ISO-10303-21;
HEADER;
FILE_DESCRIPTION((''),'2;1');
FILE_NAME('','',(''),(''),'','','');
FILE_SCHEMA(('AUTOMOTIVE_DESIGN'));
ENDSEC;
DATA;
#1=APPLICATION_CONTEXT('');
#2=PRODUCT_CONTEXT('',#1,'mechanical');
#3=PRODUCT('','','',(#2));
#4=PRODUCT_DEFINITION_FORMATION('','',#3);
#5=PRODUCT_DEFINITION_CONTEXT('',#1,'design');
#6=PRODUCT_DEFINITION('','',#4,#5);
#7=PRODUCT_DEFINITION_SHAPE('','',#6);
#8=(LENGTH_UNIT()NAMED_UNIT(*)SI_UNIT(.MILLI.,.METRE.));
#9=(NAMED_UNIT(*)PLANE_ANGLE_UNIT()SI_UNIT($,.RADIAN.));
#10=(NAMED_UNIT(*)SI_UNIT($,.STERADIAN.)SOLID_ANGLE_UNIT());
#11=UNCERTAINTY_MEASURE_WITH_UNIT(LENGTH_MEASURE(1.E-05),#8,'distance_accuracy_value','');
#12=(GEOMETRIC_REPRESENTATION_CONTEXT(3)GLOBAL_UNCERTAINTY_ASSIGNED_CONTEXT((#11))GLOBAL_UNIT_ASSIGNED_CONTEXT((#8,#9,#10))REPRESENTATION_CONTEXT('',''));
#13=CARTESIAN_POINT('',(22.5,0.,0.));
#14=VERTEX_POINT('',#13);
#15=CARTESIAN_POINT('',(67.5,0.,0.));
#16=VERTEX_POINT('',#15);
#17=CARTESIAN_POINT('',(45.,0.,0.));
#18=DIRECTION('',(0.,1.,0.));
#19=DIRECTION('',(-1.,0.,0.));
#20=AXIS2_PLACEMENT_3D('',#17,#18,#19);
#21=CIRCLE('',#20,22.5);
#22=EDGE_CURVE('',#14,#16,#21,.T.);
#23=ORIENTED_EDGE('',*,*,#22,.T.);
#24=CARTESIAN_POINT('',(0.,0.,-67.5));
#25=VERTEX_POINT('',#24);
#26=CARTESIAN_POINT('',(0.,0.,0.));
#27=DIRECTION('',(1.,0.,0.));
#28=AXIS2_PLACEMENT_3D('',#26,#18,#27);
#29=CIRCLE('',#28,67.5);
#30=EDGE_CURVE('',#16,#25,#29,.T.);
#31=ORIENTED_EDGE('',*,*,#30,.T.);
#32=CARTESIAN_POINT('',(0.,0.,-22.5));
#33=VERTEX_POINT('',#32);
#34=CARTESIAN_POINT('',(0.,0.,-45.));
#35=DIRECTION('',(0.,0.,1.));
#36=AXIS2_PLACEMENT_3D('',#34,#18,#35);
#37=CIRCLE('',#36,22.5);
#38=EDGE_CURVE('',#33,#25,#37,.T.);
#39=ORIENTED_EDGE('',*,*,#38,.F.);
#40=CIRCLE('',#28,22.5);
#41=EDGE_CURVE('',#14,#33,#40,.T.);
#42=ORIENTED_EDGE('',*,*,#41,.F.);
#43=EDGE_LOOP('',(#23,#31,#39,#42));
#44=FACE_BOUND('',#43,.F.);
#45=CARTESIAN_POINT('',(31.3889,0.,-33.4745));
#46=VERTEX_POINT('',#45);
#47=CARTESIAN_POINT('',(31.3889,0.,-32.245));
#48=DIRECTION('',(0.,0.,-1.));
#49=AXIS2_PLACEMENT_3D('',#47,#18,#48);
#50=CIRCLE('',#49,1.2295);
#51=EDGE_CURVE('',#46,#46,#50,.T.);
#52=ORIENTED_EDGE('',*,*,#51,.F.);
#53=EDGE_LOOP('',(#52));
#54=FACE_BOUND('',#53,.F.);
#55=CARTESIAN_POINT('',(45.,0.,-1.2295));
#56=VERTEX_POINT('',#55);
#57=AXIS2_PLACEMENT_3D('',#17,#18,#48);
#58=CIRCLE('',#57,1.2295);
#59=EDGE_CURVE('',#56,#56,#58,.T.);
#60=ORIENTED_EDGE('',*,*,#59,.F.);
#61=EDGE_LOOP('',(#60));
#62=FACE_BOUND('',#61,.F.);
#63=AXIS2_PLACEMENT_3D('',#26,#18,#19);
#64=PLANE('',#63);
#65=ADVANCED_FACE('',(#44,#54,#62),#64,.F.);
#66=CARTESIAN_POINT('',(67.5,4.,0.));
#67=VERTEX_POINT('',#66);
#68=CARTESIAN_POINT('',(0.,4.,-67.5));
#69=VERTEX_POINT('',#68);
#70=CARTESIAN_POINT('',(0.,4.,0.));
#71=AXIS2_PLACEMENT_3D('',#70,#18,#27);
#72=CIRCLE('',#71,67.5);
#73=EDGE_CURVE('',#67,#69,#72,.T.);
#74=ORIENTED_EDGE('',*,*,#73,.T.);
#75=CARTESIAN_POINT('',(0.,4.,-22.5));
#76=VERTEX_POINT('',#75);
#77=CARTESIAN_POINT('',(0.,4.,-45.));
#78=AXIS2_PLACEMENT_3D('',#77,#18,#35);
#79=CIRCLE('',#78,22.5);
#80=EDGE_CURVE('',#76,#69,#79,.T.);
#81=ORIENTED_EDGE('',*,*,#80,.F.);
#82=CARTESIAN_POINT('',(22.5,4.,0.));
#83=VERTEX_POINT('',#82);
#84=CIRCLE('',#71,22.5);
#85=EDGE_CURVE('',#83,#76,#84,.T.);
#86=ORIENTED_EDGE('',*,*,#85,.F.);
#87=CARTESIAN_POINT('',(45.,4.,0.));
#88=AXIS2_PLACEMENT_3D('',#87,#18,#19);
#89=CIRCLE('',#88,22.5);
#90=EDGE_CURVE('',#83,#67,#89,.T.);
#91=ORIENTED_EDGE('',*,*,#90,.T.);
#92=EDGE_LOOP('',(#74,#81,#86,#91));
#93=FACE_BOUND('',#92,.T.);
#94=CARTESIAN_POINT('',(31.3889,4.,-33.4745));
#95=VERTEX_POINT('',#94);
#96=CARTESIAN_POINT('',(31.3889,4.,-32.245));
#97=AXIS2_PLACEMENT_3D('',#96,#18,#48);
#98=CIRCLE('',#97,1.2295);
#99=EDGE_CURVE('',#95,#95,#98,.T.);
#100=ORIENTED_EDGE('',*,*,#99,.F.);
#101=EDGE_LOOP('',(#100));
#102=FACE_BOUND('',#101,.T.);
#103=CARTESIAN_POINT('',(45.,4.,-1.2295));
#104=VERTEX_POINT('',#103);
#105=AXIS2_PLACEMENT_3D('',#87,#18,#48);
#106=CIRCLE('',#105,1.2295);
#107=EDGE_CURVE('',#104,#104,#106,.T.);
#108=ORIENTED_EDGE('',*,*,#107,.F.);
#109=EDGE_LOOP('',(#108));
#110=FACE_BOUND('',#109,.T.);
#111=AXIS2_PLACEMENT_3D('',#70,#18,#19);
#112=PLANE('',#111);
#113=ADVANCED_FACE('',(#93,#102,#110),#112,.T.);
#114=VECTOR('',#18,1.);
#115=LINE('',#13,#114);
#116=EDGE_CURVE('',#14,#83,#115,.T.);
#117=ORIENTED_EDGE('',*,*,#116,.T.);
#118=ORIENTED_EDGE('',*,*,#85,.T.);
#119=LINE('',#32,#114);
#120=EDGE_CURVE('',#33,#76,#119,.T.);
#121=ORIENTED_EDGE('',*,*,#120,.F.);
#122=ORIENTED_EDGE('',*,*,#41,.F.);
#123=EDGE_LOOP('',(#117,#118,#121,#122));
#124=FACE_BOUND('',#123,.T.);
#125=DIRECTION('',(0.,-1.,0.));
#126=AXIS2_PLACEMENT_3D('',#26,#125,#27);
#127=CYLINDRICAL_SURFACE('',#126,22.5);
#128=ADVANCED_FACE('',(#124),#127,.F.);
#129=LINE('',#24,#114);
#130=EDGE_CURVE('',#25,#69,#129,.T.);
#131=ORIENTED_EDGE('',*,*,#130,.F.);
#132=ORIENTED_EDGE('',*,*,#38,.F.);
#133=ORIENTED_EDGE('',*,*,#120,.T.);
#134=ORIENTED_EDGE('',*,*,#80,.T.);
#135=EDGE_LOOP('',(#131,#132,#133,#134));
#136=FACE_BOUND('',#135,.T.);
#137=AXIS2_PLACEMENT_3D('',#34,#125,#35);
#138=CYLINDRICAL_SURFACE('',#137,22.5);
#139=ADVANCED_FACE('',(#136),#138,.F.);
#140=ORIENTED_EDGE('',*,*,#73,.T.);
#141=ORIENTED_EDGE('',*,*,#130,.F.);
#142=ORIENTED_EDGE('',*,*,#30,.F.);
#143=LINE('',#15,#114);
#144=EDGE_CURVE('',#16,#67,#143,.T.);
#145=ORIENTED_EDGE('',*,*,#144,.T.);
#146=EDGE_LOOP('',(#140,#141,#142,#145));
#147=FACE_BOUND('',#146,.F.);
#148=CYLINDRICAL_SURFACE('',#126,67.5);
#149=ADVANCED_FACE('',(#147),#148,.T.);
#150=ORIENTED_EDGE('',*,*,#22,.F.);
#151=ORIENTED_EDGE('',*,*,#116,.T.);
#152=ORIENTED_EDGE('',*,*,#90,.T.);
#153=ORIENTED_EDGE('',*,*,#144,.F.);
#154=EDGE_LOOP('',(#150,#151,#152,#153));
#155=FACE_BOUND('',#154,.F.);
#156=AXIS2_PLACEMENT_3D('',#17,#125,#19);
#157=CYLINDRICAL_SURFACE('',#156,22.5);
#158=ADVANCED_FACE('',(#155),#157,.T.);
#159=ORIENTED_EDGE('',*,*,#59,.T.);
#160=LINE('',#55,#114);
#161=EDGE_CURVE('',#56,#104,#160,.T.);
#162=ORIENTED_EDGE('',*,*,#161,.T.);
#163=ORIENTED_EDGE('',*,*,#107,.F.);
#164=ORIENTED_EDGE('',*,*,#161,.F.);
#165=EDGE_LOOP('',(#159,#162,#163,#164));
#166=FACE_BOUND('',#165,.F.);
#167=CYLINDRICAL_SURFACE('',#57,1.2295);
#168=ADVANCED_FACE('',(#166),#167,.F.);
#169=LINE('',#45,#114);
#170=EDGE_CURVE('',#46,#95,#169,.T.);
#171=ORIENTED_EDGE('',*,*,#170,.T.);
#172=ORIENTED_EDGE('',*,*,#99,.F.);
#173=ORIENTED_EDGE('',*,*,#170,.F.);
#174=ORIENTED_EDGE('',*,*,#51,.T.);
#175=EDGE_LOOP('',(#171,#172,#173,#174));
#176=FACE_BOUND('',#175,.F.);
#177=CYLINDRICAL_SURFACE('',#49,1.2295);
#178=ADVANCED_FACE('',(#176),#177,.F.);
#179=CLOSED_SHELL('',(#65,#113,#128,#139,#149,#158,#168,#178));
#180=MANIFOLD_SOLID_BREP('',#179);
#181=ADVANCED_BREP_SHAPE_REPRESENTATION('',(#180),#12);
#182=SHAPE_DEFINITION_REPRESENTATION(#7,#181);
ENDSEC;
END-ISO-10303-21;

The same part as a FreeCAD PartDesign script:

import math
import FreeCAD as App
import Part
import Sketcher

V = App.Vector
Q = App.Units.Quantity

doc = App.newDocument("Part")
body = doc.addObject("PartDesign::Body", "Body")

# Sketch on XZ plane
sketch1 = body.newObject("Sketcher::SketchObject", "Sketch")
sketch1.AttachmentSupport = (doc.getObject("XZ_Plane"), [""])
sketch1.MapMode = "FlatFace"
sketch1.addGeometry(Part.ArcOfCircle(Part.Circle(V(45, 0, 0), V(0, 0, 1), 22), math.radians(0), math.radians(180)), False)
sketch1.addGeometry(Part.ArcOfCircle(Part.Circle(V(0, 0, 0), V(0, 0, 1), 68), math.radians(-90), math.radians(0)), False)
sketch1.addGeometry(Part.ArcOfCircle(Part.Circle(V(0, -45, 0), V(0, 0, 1), 22), math.radians(-90), math.radians(90)), False)
sketch1.addGeometry(Part.ArcOfCircle(Part.Circle(V(0, 0, 0), V(0, 0, 1), 22), math.radians(-90), math.radians(0)), False)
sketch1.addConstraint(Sketcher.Constraint("Tangent", 0, 1, 1, 2))
sketch1.addConstraint(Sketcher.Constraint("Tangent", 1, 1, 2, 1))
sketch1.addConstraint(Sketcher.Constraint("Tangent", 2, 2, 3, 1))
sketch1.addConstraint(Sketcher.Constraint("Tangent", 3, 2, 0, 2))
sketch1.addConstraint(Sketcher.Constraint("Coincident", 1, 3, -1, 1))
sketch1.addConstraint(Sketcher.Constraint("Coincident", 3, 3, -1, 1))
sketch1.addConstraint(Sketcher.Constraint("Equal", 2, 3))
sketch1.addConstraint(Sketcher.Constraint("PointOnObject", 0, 3, -1))
sketch1.addConstraint(Sketcher.Constraint("PointOnObject", 2, 3, -2))
sketch1.addConstraint(Sketcher.Constraint("Radius", 0, Q("22.5 mm")))
pad1 = body.newObject("PartDesign::Pad", "Pad")
pad1.Profile = sketch1
pad1.Length = 4
pad1.Reversed = True

# Sketch on XZ plane
sketch2 = body.newObject("Sketcher::SketchObject", "Sketch001")
sketch2.AttachmentSupport = (doc.getObject("XZ_Plane"), [""])
sketch2.MapMode = "FlatFace"
sketch2.addGeometry(Part.Circle(V(45, 0, 0), V(0, 0, 1), 1.2), False)
sketch2.addGeometry(Part.Circle(V(31.4, -32.2, 0), V(0, 0, 1), 1.2), False)
sketch2.addConstraint(Sketcher.Constraint("Equal", 0, 1))
sketch2.addConstraint(Sketcher.Constraint("PointOnObject", 0, 3, -1))
sketch2.addConstraint(Sketcher.Constraint("Diameter", 0, Q("2.459 mm")))
sketch2.addConstraint(Sketcher.Constraint("DistanceX", -1, 1, 0, 3, Q("45 mm")))
sketch2.addConstraint(Sketcher.Constraint("DistanceX", -1, 1, 1, 3, Q("31.389 mm")))
sketch2.addConstraint(Sketcher.Constraint("DistanceY", 1, 3, -1, 1, Q("32.245 mm")))
doc.recompute()
hole = body.newObject("PartDesign::Hole", "Hole")
hole.Profile = sketch2
hole.ThreadType = "None"
hole.Diameter = 2.459
hole.DepthType = "ThroughAll"

doc.recompute()
